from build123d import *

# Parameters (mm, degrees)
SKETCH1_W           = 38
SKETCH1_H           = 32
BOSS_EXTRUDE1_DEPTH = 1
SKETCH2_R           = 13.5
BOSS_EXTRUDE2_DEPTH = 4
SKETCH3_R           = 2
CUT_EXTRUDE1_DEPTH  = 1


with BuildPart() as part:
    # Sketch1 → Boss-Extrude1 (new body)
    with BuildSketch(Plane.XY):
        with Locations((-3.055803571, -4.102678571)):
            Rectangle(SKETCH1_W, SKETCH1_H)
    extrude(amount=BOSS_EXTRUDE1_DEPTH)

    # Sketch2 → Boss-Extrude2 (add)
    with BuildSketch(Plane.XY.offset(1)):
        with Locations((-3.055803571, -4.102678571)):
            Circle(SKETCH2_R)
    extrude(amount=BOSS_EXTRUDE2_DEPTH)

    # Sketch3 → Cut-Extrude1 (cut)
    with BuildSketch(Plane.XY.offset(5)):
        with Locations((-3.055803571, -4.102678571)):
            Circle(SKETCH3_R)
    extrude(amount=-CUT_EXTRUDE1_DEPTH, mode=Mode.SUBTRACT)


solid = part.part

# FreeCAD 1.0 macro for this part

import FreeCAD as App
import Part
import Sketcher
from FreeCAD import Vector

doc = App.newDocument("Part")
body = doc.addObject("PartDesign::Body", "Body")

# Sketch on XY plane
sketch1 = doc.addObject("Sketcher::SketchObject", "Sketch")
body.addObject(sketch1)
sketch1.AttachmentSupport = (doc.XY_Plane, [""])
sketch1.MapMode = "FlatFace"
sketch1.addGeometry(Part.LineSegment(Vector(-22.055804, 11.897321, 0), Vector(-22.055804, -20.102679, 0)), False)
sketch1.addGeometry(Part.LineSegment(Vector(-22.055804, -20.102679, 0), Vector(15.944196, -20.102679, 0)), False)
sketch1.addGeometry(Part.LineSegment(Vector(15.944196, -20.102679, 0), Vector(15.944196, 11.897321, 0)), False)
sketch1.addGeometry(Part.LineSegment(Vector(15.944196, 11.897321, 0), Vector(-22.055804, 11.897321, 0)), False)
sketch1.addConstraint(Sketcher.Constraint("Coincident", 0, 2, 1, 1))
sketch1.addConstraint(Sketcher.Constraint("Coincident", 1, 2, 2, 1))
sketch1.addConstraint(Sketcher.Constraint("Coincident", 2, 2, 3, 1))
sketch1.addConstraint(Sketcher.Constraint("Coincident", 3, 2, 0, 1))
sketch1.addConstraint(Sketcher.Constraint("Vertical", 0))
sketch1.addConstraint(Sketcher.Constraint("Horizontal", 1))
sketch1.addConstraint(Sketcher.Constraint("Vertical", 2))
sketch1.addConstraint(Sketcher.Constraint("Horizontal", 3))
sketch1.addConstraint(Sketcher.Constraint("DistanceX", 1, 1, 1, 2, 38.0))
sketch1.addConstraint(Sketcher.Constraint("DistanceY", 0, 2, 0, 1, 32.0))
sketch1.addConstraint(Sketcher.Constraint("DistanceY", 0, 2, -1, 1, 20.102679))
sketch1.addConstraint(Sketcher.Constraint("DistanceX", 0, 2, -1, 1, 22.055804))
pad1 = doc.addObject("PartDesign::Pad", "Pad")
body.addObject(pad1)
pad1.Profile = sketch1
pad1.Length = 1

# Sketch on XY plane
sketch2 = doc.addObject("Sketcher::SketchObject", "Sketch001")
body.addObject(sketch2)
sketch2.AttachmentSupport = (doc.XY_Plane, [""])
sketch2.MapMode = "FlatFace"
sketch2.AttachmentOffset = App.Placement(Vector(0, 0, 1), App.Rotation())
sketch2.addGeometry(Part.Circle(Vector(-3.055804, -4.102679, 0), Vector(0, 0, 1), 13.5), False)
sketch2.addConstraint(Sketcher.Constraint("Diameter", 0, 27.0))
sketch2.addConstraint(Sketcher.Constraint("DistanceY", 0, 3, -1, 1, 4.102679))
sketch2.addConstraint(Sketcher.Constraint("DistanceX", 0, 3, -1, 1, 3.055804))
pad2 = doc.addObject("PartDesign::Pad", "Pad001")
body.addObject(pad2)
pad2.Profile = sketch2
pad2.Length = 4

# Sketch on XY plane
sketch3 = doc.addObject("Sketcher::SketchObject", "Sketch002")
body.addObject(sketch3)
sketch3.AttachmentSupport = (doc.XY_Plane, [""])
sketch3.MapMode = "FlatFace"
sketch3.AttachmentOffset = App.Placement(Vector(0, 0, 5), App.Rotation())
sketch3.addGeometry(Part.Circle(Vector(-3.055804, -4.102679, 0), Vector(0, 0, 1), 2), False)
sketch3.addConstraint(Sketcher.Constraint("Diameter", 0, 4.0))
sketch3.addConstraint(Sketcher.Constraint("DistanceY", 0, 3, -1, 1, 4.102679))
sketch3.addConstraint(Sketcher.Constraint("DistanceX", 0, 3, -1, 1, 3.055804))
pocket1 = doc.addObject("PartDesign::Pocket", "Pocket")
body.addObject(pocket1)
pocket1.Profile = sketch3
pocket1.Length = 1

doc.recompute()
